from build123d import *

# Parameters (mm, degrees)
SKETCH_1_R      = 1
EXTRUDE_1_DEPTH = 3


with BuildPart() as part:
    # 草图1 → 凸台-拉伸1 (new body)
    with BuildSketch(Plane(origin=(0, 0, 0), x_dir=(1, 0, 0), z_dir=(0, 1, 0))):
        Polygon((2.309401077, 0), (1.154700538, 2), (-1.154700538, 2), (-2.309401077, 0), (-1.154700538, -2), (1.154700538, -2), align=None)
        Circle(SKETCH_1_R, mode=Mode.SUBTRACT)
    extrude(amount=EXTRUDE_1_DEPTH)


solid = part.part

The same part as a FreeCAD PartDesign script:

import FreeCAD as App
import Part
import Sketcher
from FreeCAD import Vector
Q = App.Units.Quantity

doc = App.newDocument("Part")
params = doc.addObject("Spreadsheet::Sheet", "Params")
for row, (alias, value) in enumerate([
    ("sketch1_diameter", "2 mm"),
    ("pad1_length", "3 mm"),
], start=1):
    params.set(f"A{row}", alias)
    params.set(f"B{row}", "=" + value)
    params.setAlias(f"B{row}", alias)

body = doc.addObject("PartDesign::Body", "Body")

# Sketch on XZ plane
sketch1 = body.newObject("Sketcher::SketchObject", "Sketch")
sketch1.AttachmentSupport = (doc.getObject("XZ_Plane"), [""])
sketch1.MapMode = "FlatFace"
sketch1.addGeometry(Part.LineSegment(Vector(2.3, 0, 0), Vector(1.2, -2, 0)), False)
sketch1.addGeometry(Part.LineSegment(Vector(1.2, -2, 0), Vector(-1.2, -2, 0)), False)
sketch1.addGeometry(Part.LineSegment(Vector(-1.2, -2, 0), Vector(-2.3, 0, 0)), False)
sketch1.addGeometry(Part.LineSegment(Vector(-2.3, 0, 0), Vector(-1.2, 2, 0)), False)
sketch1.addGeometry(Part.LineSegment(Vector(-1.2, 2, 0), Vector(1.2, 2, 0)), False)
sketch1.addGeometry(Part.LineSegment(Vector(1.2, 2, 0), Vector(2.3, 0, 0)), False)
sketch1.addGeometry(Part.Circle(Vector(0, 0, 0), Vector(0, 0, 1), 1), False)
sketch1.addConstraint(Sketcher.Constraint("Coincident", 0, 2, 1, 1))
sketch1.addConstraint(Sketcher.Constraint("Coincident", 1, 2, 2, 1))
sketch1.addConstraint(Sketcher.Constraint("Coincident", 2, 2, 3, 1))
sketch1.addConstraint(Sketcher.Constraint("Coincident", 3, 2, 4, 1))
sketch1.addConstraint(Sketcher.Constraint("Coincident", 4, 2, 5, 1))
sketch1.addConstraint(Sketcher.Constraint("Coincident", 5, 2, 0, 1))
sketch1.addConstraint(Sketcher.Constraint("Horizontal", 1))
sketch1.addConstraint(Sketcher.Constraint("Horizontal", 4))
sketch1.addConstraint(Sketcher.Constraint("Coincident", 6, 3, -1, 1))
sketch1.addConstraint(Sketcher.Constraint("Symmetric", 0, 2, 3, 2, -1, 1))
sketch1.addConstraint(Sketcher.Constraint("Symmetric", 2, 2, 5, 2, -1, 1))
sketch1.addConstraint(Sketcher.Constraint("PointOnObject", 2, 2, -1))
sketch1.addConstraint(Sketcher.Constraint("Parallel", 2, 5))
sketch1.addConstraint(Sketcher.Constraint("Vertical", 1, 2, 3, 2))
sketch1.addConstraint(Sketcher.Constraint("Diameter", 6, Q("2 mm")))
sketch1.addConstraint(Sketcher.Constraint("Angle", 0, Q("-120 deg")))
sketch1.addConstraint(Sketcher.Constraint("DistanceY", 0, 2, -1, 1, Q("2 mm")))
sketch1.addConstraint(Sketcher.Constraint("DistanceX", 1, 2, 1, 1, Q("2.309401 mm")))
sketch1.setExpression("Constraints[14]", "Params.sketch1_diameter")
pad1 = body.newObject("PartDesign::Pad", "Pad")
pad1.Profile = sketch1
pad1.setExpression("Length", "Params.pad1_length")
pad1.Reversed = True

doc.recompute()
